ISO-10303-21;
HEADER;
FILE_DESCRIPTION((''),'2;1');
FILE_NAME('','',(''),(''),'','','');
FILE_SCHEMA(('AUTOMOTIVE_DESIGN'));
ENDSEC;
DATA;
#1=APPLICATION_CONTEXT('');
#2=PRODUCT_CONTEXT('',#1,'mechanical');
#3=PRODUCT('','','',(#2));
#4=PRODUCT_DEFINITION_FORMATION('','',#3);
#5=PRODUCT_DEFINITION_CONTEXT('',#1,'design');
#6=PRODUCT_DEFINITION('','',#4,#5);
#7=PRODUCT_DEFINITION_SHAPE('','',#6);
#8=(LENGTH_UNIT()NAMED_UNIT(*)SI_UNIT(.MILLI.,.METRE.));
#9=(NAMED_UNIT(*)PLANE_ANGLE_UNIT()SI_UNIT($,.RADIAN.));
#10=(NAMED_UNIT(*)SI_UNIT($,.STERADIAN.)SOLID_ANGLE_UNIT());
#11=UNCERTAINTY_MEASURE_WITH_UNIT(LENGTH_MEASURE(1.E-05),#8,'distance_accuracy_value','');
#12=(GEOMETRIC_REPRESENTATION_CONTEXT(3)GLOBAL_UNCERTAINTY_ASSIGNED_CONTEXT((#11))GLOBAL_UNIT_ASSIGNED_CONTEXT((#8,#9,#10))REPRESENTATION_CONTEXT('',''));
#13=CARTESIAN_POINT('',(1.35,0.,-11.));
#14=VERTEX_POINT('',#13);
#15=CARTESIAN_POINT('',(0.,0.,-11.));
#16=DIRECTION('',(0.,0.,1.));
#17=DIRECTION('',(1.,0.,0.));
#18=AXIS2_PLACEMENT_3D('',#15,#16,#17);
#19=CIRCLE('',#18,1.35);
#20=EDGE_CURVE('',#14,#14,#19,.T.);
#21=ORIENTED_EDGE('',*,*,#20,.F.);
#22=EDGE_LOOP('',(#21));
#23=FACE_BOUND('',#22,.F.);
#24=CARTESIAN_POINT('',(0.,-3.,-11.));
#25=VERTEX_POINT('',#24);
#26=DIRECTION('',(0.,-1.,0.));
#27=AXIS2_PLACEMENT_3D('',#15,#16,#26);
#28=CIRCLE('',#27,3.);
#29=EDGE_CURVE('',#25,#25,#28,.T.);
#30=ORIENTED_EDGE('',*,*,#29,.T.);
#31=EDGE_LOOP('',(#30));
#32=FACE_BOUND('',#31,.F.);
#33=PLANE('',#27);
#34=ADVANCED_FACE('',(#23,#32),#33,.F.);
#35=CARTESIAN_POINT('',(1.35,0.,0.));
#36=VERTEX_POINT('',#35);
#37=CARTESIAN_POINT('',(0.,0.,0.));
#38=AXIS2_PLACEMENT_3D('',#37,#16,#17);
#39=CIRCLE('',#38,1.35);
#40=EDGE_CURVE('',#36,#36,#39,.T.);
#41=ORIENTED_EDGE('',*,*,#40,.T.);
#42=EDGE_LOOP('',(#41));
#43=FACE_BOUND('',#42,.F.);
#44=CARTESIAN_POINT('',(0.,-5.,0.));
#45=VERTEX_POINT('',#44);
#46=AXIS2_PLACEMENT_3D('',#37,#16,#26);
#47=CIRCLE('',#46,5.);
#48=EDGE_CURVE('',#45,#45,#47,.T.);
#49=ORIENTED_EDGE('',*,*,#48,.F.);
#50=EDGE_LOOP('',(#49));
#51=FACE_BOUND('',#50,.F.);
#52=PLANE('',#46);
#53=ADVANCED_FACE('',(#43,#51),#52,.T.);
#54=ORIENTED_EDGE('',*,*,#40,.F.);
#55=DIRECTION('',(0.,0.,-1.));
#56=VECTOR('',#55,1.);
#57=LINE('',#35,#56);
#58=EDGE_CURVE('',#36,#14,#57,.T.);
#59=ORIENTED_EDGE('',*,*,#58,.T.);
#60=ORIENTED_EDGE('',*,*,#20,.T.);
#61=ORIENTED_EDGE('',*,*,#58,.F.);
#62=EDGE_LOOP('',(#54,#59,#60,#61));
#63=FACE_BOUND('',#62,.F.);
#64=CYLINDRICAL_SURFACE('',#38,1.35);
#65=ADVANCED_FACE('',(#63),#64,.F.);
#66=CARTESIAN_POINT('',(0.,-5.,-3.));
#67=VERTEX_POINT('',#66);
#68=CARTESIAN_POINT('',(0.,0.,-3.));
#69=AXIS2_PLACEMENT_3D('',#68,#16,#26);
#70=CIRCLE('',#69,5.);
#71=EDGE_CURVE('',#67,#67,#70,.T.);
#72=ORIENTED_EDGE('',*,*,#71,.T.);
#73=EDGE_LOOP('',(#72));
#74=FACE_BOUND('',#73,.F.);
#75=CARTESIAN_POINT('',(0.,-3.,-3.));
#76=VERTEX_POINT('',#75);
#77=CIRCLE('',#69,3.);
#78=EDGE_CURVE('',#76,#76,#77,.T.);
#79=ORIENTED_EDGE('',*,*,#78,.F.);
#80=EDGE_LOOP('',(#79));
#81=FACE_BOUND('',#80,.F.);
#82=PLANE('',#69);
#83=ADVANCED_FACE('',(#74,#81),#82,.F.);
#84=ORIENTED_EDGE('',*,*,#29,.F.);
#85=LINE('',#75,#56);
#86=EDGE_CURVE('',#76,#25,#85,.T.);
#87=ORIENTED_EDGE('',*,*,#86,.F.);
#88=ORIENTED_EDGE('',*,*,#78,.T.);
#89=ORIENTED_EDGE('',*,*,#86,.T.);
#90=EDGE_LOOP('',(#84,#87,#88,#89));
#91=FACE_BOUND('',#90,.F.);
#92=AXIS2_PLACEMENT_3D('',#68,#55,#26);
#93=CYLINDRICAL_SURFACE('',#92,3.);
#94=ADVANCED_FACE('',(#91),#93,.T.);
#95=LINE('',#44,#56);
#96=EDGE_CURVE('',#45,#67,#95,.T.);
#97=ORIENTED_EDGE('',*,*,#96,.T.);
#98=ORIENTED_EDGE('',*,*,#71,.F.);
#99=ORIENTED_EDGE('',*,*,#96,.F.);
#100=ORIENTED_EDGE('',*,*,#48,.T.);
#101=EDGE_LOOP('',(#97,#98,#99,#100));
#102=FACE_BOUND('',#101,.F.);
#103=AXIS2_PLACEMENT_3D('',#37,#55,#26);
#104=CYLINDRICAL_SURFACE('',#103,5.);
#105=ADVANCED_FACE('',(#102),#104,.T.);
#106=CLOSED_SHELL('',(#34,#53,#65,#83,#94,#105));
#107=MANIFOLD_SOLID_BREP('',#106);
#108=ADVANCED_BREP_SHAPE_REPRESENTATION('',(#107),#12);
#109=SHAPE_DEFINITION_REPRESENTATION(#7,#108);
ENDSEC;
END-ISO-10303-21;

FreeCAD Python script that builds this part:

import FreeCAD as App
import Part
import Sketcher

V = App.Vector

doc = App.newDocument("Part")
body = doc.addObject("PartDesign::Body", "Body")

sketch1 = body.newObject("Sketcher::SketchObject", "Sketch")
sketch1.AttachmentSupport = (doc.getObject("YZ_Plane"), [""])
sketch1.MapMode = "FlatFace"
sketch1.addGeometry(Part.LineSegment(V(0, -11, 0), V(0, 0, 0)), False)
sketch1.addGeometry(Part.LineSegment(V(0, 0, 0), V(-5, 0, 0)), False)
sketch1.addGeometry(Part.LineSegment(V(-5, 0, 0), V(-5, -3, 0)), False)
sketch1.addGeometry(Part.LineSegment(V(-5, -3, 0), V(-3, -3, 0)), False)
sketch1.addGeometry(Part.LineSegment(V(-3, -3, 0), V(-3, -11, 0)), False)
sketch1.addGeometry(Part.LineSegment(V(-3, -11, 0), V(0, -11, 0)), False)
sketch1.addConstraint(Sketcher.Constraint("Coincident", 0, 2, 1, 1))
sketch1.addConstraint(Sketcher.Constraint("Coincident", 1, 2, 2, 1))
sketch1.addConstraint(Sketcher.Constraint("Coincident", 2, 2, 3, 1))
sketch1.addConstraint(Sketcher.Constraint("Coincident", 3, 2, 4, 1))
sketch1.addConstraint(Sketcher.Constraint("Coincident", 4, 2, 5, 1))
sketch1.addConstraint(Sketcher.Constraint("Coincident", 5, 2, 0, 1))
sketch1.addConstraint(Sketcher.Constraint("Vertical", 0))
sketch1.addConstraint(Sketcher.Constraint("Horizontal", 1))
sketch1.addConstraint(Sketcher.Constraint("Vertical", 2))
sketch1.addConstraint(Sketcher.Constraint("Horizontal", 3))
sketch1.addConstraint(Sketcher.Constraint("Vertical", 4))
sketch1.addConstraint(Sketcher.Constraint("Horizontal", 5))
sketch1.addConstraint(Sketcher.Constraint("Coincident", 0, 2, -1, 1))
sketch1.addConstraint(Sketcher.Constraint("Equal", 5, 2))
sketch1.addConstraint(Sketcher.Constraint("DistanceX", 1, 2, 1, 1, 5.0))
sketch1.addConstraint(Sketcher.Constraint("DistanceX", 3, 1, 3, 2, 2.0))
sketch1.addConstraint(Sketcher.Constraint("DistanceY", 0, 1, 0, 2, 11.0))
revolution = body.newObject("PartDesign::Revolution", "Revolution")
revolution.Profile = sketch1
revolution.ReferenceAxis = (sketch1, ["V_Axis"])
revolution.Angle = 360

sketch2 = body.newObject("Sketcher::SketchObject", "Sketch001")
sketch2.AttachmentSupport = (doc.getObject("XY_Plane"), [""])
sketch2.MapMode = "FlatFace"
sketch2.addGeometry(Part.Circle(V(0, 0, 0), V(0, 0, 1), 1.4), False)
sketch2.addConstraint(Sketcher.Constraint("Coincident", 0, 3, -1, 1))
sketch2.addConstraint(Sketcher.Constraint("Diameter", 0, 2.7))
pocket1 = body.newObject("PartDesign::Pocket", "Pocket")
pocket1.Profile = sketch2
pocket1.Length = 21.8

doc.recompute()
